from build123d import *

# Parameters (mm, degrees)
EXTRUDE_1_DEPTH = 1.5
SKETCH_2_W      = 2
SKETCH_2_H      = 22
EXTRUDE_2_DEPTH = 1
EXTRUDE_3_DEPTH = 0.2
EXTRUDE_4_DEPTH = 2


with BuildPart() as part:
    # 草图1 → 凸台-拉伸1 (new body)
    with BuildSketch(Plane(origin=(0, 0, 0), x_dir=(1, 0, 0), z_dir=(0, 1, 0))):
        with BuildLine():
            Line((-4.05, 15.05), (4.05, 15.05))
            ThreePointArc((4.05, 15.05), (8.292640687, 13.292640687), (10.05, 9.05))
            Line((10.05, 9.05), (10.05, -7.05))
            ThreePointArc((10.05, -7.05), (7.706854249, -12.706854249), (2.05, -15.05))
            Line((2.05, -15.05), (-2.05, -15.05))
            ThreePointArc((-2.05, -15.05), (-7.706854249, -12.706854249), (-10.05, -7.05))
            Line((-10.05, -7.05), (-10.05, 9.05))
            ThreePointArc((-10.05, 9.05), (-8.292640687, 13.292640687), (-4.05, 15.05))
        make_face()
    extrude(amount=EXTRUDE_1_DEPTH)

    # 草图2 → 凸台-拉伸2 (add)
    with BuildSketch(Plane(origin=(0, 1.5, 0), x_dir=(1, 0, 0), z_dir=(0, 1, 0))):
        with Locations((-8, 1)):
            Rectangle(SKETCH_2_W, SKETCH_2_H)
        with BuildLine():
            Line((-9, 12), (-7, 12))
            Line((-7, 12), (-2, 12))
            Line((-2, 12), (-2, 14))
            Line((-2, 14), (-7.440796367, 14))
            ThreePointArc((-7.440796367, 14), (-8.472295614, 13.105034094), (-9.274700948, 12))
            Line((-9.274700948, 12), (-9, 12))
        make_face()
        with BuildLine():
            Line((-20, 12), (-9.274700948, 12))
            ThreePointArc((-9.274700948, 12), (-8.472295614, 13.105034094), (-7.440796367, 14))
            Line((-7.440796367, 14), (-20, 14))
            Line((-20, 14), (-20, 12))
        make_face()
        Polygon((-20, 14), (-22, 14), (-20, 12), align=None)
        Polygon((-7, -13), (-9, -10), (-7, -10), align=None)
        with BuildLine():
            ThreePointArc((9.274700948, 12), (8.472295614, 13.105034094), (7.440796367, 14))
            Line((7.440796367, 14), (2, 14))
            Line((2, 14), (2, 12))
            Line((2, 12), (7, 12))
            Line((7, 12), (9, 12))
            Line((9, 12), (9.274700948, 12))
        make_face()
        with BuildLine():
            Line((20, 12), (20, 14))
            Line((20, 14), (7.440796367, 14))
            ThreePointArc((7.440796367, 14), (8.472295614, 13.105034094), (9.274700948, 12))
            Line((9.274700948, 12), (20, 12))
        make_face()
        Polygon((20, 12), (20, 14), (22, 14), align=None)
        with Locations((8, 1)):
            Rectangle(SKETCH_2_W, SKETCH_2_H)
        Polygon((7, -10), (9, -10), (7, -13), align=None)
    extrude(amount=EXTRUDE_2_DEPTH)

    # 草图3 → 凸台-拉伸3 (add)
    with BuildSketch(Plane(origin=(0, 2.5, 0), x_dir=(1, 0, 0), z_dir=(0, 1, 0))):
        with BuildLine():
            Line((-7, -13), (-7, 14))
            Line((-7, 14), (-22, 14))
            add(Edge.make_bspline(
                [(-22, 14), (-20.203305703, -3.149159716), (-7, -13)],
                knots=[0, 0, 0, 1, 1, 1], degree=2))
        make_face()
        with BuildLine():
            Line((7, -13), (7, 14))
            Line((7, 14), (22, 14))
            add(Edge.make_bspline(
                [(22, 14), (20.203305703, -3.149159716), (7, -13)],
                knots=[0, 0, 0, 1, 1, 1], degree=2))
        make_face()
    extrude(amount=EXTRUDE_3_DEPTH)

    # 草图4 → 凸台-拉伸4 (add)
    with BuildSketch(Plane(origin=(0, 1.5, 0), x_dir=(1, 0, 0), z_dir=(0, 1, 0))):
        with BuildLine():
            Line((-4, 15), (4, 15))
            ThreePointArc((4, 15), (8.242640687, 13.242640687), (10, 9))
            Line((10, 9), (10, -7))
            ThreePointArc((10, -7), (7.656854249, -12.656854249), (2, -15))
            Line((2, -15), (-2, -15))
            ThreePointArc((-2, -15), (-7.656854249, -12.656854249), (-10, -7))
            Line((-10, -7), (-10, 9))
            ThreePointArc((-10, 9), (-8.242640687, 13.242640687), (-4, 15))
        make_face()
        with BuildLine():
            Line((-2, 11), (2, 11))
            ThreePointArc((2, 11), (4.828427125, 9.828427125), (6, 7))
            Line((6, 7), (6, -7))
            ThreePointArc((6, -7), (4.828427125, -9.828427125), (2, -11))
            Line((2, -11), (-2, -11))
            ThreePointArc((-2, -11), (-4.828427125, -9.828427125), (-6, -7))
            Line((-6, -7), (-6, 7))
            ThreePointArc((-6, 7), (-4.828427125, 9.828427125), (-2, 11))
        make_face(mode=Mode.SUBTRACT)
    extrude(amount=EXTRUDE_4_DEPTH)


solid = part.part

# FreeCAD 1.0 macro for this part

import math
import FreeCAD as App
import Part
import Sketcher


def add_polygon(sketch, points):
    """Adds a closed chain of lines whose ends are joined by coincident constraints."""
    first, n = sketch.GeometryCount, len(points)
    for a, b in zip(points, points[1:] + points[:1]):
        sketch.addGeometry(Part.LineSegment(App.Vector(*a, 0), App.Vector(*b, 0)), False)
    for i in range(n):
        sketch.addConstraint(Sketcher.Constraint("Coincident", first + i, 2, first + (i + 1) % n, 1))

doc = App.newDocument("Part")
params = doc.addObject("Spreadsheet::Sheet", "Params")
for row, (alias, value) in enumerate([
    ("sketch1_radius", "6 mm"),
    ("sketch1_radius2", "8 mm"),
    ("sketch1_width", "8.1 mm"),
    ("sketch1_height", "16.1 mm"),
    ("pad1_length", "1.5 mm"),
    ("sketch2_width", "5 mm"),
    ("sketch2_width2", "20 mm"),
    ("sketch2_width3", "11 mm"),
    ("sketch2_height", "22 mm"),
    ("sketch2_height2", "25 mm"),
    ("pad2_length", "1 mm"),
    ("pad3_length", "0.2 mm"),
    ("sketch4_radius", "6 mm"),
    ("sketch4_radius2", "8 mm"),
    ("sketch4_radius3", "4 mm"),
    ("sketch4_width", "8 mm"),
    ("sketch4_height", "16 mm"),
    ("pad4_length", "2 mm"),
], start=1):
    params.set(f"A{row}", alias)
    params.set(f"B{row}", "=" + value)
    params.setAlias(f"B{row}", alias)

body = doc.addObject("PartDesign::Body", "Body")

# Sketch on XZ plane
sketch1 = body.newObject("Sketcher::SketchObject", "Sketch")
sketch1.AttachmentSupport = (doc.getObject("XZ_Plane"), [""])
sketch1.MapMode = "FlatFace"
sketch1.addGeometry([
    Part.LineSegment(App.Vector(4.05, -15.05, 0), App.Vector(-4.05, -15.05, 0)),  # 0
    Part.ArcOfCircle(Part.Circle(App.Vector(-4.05, -9.05, 0), App.Vector(0, 0, 1), 6), math.radians(180), math.radians(270)),  # 1
    Part.LineSegment(App.Vector(-10.05, -9.05, 0), App.Vector(-10.05, 7.05, 0)),  # 2
    Part.ArcOfCircle(Part.Circle(App.Vector(-2.05, 7.05, 0), App.Vector(0, 0, 1), 8), math.radians(90), math.radians(180)),  # 3
    Part.LineSegment(App.Vector(-2.05, 15.05, 0), App.Vector(2.05, 15.05, 0)),  # 4
    Part.ArcOfCircle(Part.Circle(App.Vector(2.05, 7.05, 0), App.Vector(0, 0, 1), 8), math.radians(0), math.radians(90)),  # 5
    Part.LineSegment(App.Vector(10.05, 7.05, 0), App.Vector(10.05, -9.05, 0)),  # 6
    Part.ArcOfCircle(Part.Circle(App.Vector(4.05, -9.05, 0), App.Vector(0, 0, 1), 6), math.radians(-90), math.radians(0)),  # 7
], False)
sketch1.addConstraint([
    Sketcher.Constraint("Tangent", 0, 2, 1, 2),
    Sketcher.Constraint("Tangent", 1, 1, 2, 1),
    Sketcher.Constraint("Tangent", 2, 2, 3, 2),
    Sketcher.Constraint("Tangent", 3, 1, 4, 1),
    Sketcher.Constraint("Tangent", 4, 2, 5, 2),
    Sketcher.Constraint("Tangent", 5, 1, 6, 1),
    Sketcher.Constraint("Tangent", 6, 2, 7, 2),
    Sketcher.Constraint("Tangent", 7, 1, 0, 1),
    Sketcher.Constraint("Horizontal", 0),
    Sketcher.Constraint("Vertical", 2),
    Sketcher.Constraint("Horizontal", 4),
    Sketcher.Constraint("Vertical", 6),
    Sketcher.Constraint("Equal", 3, 5),
    Sketcher.Constraint("Equal", 1, 7),
    Sketcher.Constraint("Radius", 1, 6.0),
    Sketcher.Constraint("Radius", 3, 8.0),
    Sketcher.Constraint("DistanceX", 0, 2, 0, 1, 8.1),
    Sketcher.Constraint("DistanceY", 2, 1, 2, 2, 16.1),
    Sketcher.Constraint("DistanceX", 1, 3, -1, 1, 4.05),
    Sketcher.Constraint("DistanceY", 1, 3, -1, 1, 9.05),
])
sketch1.setExpression("Constraints[14]", "Params.sketch1_radius")
sketch1.setExpression("Constraints[15]", "Params.sketch1_radius2")
sketch1.setExpression("Constraints[16]", "Params.sketch1_width")
sketch1.setExpression("Constraints[17]", "Params.sketch1_height")
pad1 = body.newObject("PartDesign::Pad", "Pad")
pad1.Profile = sketch1
pad1.setExpression("Length", "Params.pad1_length")
pad1.Reversed = True

# Sketch on XZ plane
sketch2 = body.newObject("Sketcher::SketchObject", "Sketch001")
sketch2.AttachmentSupport = (doc.getObject("XZ_Plane"), [""])
sketch2.MapMode = "FlatFace"
sketch2.AttachmentOffset = App.Placement(App.Vector(0, 0, -1.5), App.Rotation())
add_polygon(sketch2, [(-9, -12), (-9, 10), (-7, 13), (-7, -12), (-2, -12), (-2, -14), (-22, -14), (-20, -12)])  # lines 0-7
add_polygon(sketch2, [(2, -14), (2, -12), (7, -12), (7, 13), (9, 10), (9, -12), (20, -12), (22, -14)])  # lines 8-15
sketch2.addConstraint([
    Sketcher.Constraint("Vertical", 0),
    Sketcher.Constraint("Vertical", 2),
    Sketcher.Constraint("Horizontal", 3),
    Sketcher.Constraint("Vertical", 4),
    Sketcher.Constraint("Horizontal", 5),
    Sketcher.Constraint("Horizontal", 7),
    Sketcher.Constraint("Vertical", 8),
    Sketcher.Constraint("Horizontal", 9),
    Sketcher.Constraint("Vertical", 10),
    Sketcher.Constraint("Vertical", 12),
    Sketcher.Constraint("Horizontal", 13),
    Sketcher.Constraint("Horizontal", 15),
    Sketcher.Constraint("Symmetric", 3, 2, 8, 2, -2),
    Sketcher.Constraint("Symmetric", 1, 2, 10, 2, -2),
    Sketcher.Constraint("Symmetric", 0, 2, 11, 2, -2),
    Sketcher.Constraint("Symmetric", 6, 2, 13, 2, -2),
    Sketcher.Constraint("Symmetric", 5, 2, 14, 2, -2),
    Sketcher.Constraint("Perpendicular", 6, 14),
    Sketcher.Constraint("Horizontal", 3, 2, 6, 2),
    Sketcher.Constraint("DistanceX", 3, 1, 3, 2, 5.0),
    Sketcher.Constraint("DistanceX", 5, 2, 5, 1, 20.0),
    Sketcher.Constraint("DistanceX", 7, 1, 7, 2, 11.0),
    Sketcher.Constraint("DistanceY", 0, 1, 0, 2, 22.0),
    Sketcher.Constraint("DistanceY", 2, 2, 2, 1, 25.0),
    Sketcher.Constraint("DistanceY", 4, 2, 4, 1, 2.0),
    Sketcher.Constraint("DistanceX", 0, 2, -1, 1, 9.0),
    Sketcher.Constraint("DistanceY", -1, 1, 0, 2, 10.0),
])
sketch2.setExpression("Constraints[35]", "Params.sketch2_width")
sketch2.setExpression("Constraints[36]", "Params.sketch2_width2")
sketch2.setExpression("Constraints[37]", "Params.sketch2_width3")
sketch2.setExpression("Constraints[38]", "Params.sketch2_height")
sketch2.setExpression("Constraints[39]", "Params.sketch2_height2")
pad2 = body.newObject("PartDesign::Pad", "Pad001")
pad2.Profile = sketch2
pad2.setExpression("Length", "Params.pad2_length")
pad2.Reversed = True

# Sketch on XZ plane
sketch3 = body.newObject("Sketcher::SketchObject", "Sketch002")
sketch3.AttachmentSupport = (doc.getObject("XZ_Plane"), [""])
sketch3.MapMode = "FlatFace"
sketch3.AttachmentOffset = App.Placement(App.Vector(0, 0, -2.5), App.Rotation())
sketch3.addGeometry([
    Part.LineSegment(App.Vector(-7, 13, 0), App.Vector(-7, -14, 0)),  # 0
    Part.LineSegment(App.Vector(-7, -14, 0), App.Vector(-22, -14, 0)),  # 1
    Part.BSplineCurve([App.Vector(-22, -14, 0), App.Vector(-20.203306, 3.14916, 0), App.Vector(-7, 13, 0)], [3, 3], [0, 1], False, 2, [1, 1, 1], False),  # 2
    Part.LineSegment(App.Vector(7, -14, 0), App.Vector(7, 13, 0)),  # 3
    Part.BSplineCurve([App.Vector(22, -14, 0), App.Vector(20.203306, 3.14916, 0), App.Vector(7, 13, 0)], [3, 3], [0, 1], False, 2, [1, 1, 1], False),  # 4
    Part.LineSegment(App.Vector(22, -14, 0), App.Vector(7, -14, 0)),  # 5
], False)
sketch3.addConstraint([
    Sketcher.Constraint("Block", 2),
    Sketcher.Constraint("Block", 4),
    Sketcher.Constraint("Coincident", 0, 2, 1, 1),
    Sketcher.Constraint("Coincident", 1, 2, 2, 1),
    Sketcher.Constraint("Coincident", 2, 2, 0, 1),
    Sketcher.Constraint("Coincident", 3, 2, 4, 2),
    Sketcher.Constraint("Coincident", 4, 1, 5, 1),
    Sketcher.Constraint("Coincident", 5, 2, 3, 1),
    Sketcher.Constraint("Vertical", 0),
    Sketcher.Constraint("Horizontal", 1),
    Sketcher.Constraint("Vertical", 3),
    Sketcher.Constraint("Horizontal", 5),
])
pad3 = body.newObject("PartDesign::Pad", "Pad002")
pad3.Profile = sketch3
pad3.setExpression("Length", "Params.pad3_length")
pad3.Reversed = True

# Sketch on XZ plane
sketch4 = body.newObject("Sketcher::SketchObject", "Sketch003")
sketch4.AttachmentSupport = (doc.getObject("XZ_Plane"), [""])
sketch4.MapMode = "FlatFace"
sketch4.AttachmentOffset = App.Placement(App.Vector(0, 0, -1.5), App.Rotation())
sketch4.addGeometry([
    Part.LineSegment(App.Vector(4, -15, 0), App.Vector(-4, -15, 0)),  # 0
    Part.ArcOfCircle(Part.Circle(App.Vector(-4, -9, 0), App.Vector(0, 0, 1), 6), math.radians(180), math.radians(270)),  # 1
    Part.LineSegment(App.Vector(-10, -9, 0), App.Vector(-10, 7, 0)),  # 2
    Part.ArcOfCircle(Part.Circle(App.Vector(-2, 7, 0), App.Vector(0, 0, 1), 8), math.radians(90), math.radians(180)),  # 3
    Part.LineSegment(App.Vector(-2, 15, 0), App.Vector(2, 15, 0)),  # 4
    Part.ArcOfCircle(Part.Circle(App.Vector(2, 7, 0), App.Vector(0, 0, 1), 8), math.radians(0), math.radians(90)),  # 5
    Part.LineSegment(App.Vector(10, 7, 0), App.Vector(10, -9, 0)),  # 6
    Part.ArcOfCircle(Part.Circle(App.Vector(4, -9, 0), App.Vector(0, 0, 1), 6), math.radians(-90), math.radians(0)),  # 7
    Part.LineSegment(App.Vector(-2, -11, 0), App.Vector(2, -11, 0)),  # 8
    Part.ArcOfCircle(Part.Circle(App.Vector(2, -7, 0), App.Vector(0, 0, 1), 4), math.radians(-90), math.radians(0)),  # 9
    Part.LineSegment(App.Vector(6, -7, 0), App.Vector(6, 7, 0)),  # 10
    Part.ArcOfCircle(Part.Circle(App.Vector(2, 7, 0), App.Vector(0, 0, 1), 4), math.radians(0), math.radians(90)),  # 11
    Part.LineSegment(App.Vector(2, 11, 0), App.Vector(-2, 11, 0)),  # 12
    Part.ArcOfCircle(Part.Circle(App.Vector(-2, 7, 0), App.Vector(0, 0, 1), 4), math.radians(90), math.radians(180)),  # 13
    Part.LineSegment(App.Vector(-6, 7, 0), App.Vector(-6, -7, 0)),  # 14
    Part.ArcOfCircle(Part.Circle(App.Vector(-2, -7, 0), App.Vector(0, 0, 1), 4), math.radians(180), math.radians(270)),  # 15
], False)
sketch4.addConstraint([
    Sketcher.Constraint("Tangent", 0, 2, 1, 2),
    Sketcher.Constraint("Tangent", 1, 1, 2, 1),
    Sketcher.Constraint("Tangent", 2, 2, 3, 2),
    Sketcher.Constraint("Tangent", 3, 1, 4, 1),
    Sketcher.Constraint("Tangent", 4, 2, 5, 2),
    Sketcher.Constraint("Tangent", 5, 1, 6, 1),
    Sketcher.Constraint("Tangent", 6, 2, 7, 2),
    Sketcher.Constraint("Tangent", 7, 1, 0, 1),
    Sketcher.Constraint("Tangent", 8, 2, 9, 1),
    Sketcher.Constraint("Tangent", 9, 2, 10, 1),
    Sketcher.Constraint("Tangent", 10, 2, 11, 1),
    Sketcher.Constraint("Tangent", 11, 2, 12, 1),
    Sketcher.Constraint("Tangent", 12, 2, 13, 1),
    Sketcher.Constraint("Tangent", 13, 2, 14, 1),
    Sketcher.Constraint("Tangent", 14, 2, 15, 1),
    Sketcher.Constraint("Tangent", 15, 2, 8, 1),
    Sketcher.Constraint("Horizontal", 0),
    Sketcher.Constraint("Vertical", 2),
    Sketcher.Constraint("Horizontal", 4),
    Sketcher.Constraint("Vertical", 6),
    Sketcher.Constraint("Horizontal", 8),
    Sketcher.Constraint("Vertical", 10),
    Sketcher.Constraint("Horizontal", 12),
    Sketcher.Constraint("Vertical", 14),
    Sketcher.Constraint("Coincident", 11, 3, 5, 3),
    Sketcher.Constraint("Coincident", 13, 3, 3, 3),
    Sketcher.Constraint("Equal", 3, 5),
    Sketcher.Constraint("Equal", 1, 7),
    Sketcher.Constraint("Equal", 9, 11),
    Sketcher.Constraint("Equal", 13, 15),
    Sketcher.Constraint("Symmetric", 3, 3, 9, 3, -1, 1),
    Sketcher.Constraint("Radius", 1, 6.0),
    Sketcher.Constraint("Radius", 3, 8.0),
    Sketcher.Constraint("Radius", 9, 4.0),
    Sketcher.Constraint("DistanceX", 0, 2, 0, 1, 8.0),
    Sketcher.Constraint("DistanceY", 2, 1, 2, 2, 16.0),
    Sketcher.Constraint("DistanceY", 10, 1, 10, 2, 14.0),
])
sketch4.setExpression("Constraints[31]", "Params.sketch4_radius")
sketch4.setExpression("Constraints[32]", "Params.sketch4_radius2")
sketch4.setExpression("Constraints[33]", "Params.sketch4_radius3")
sketch4.setExpression("Constraints[34]", "Params.sketch4_width")
sketch4.setExpression("Constraints[35]", "Params.sketch4_height")
pad4 = body.newObject("PartDesign::Pad", "Pad003")
pad4.Profile = sketch4
pad4.setExpression("Length", "Params.pad4_length")
pad4.Reversed = True

doc.recompute()
